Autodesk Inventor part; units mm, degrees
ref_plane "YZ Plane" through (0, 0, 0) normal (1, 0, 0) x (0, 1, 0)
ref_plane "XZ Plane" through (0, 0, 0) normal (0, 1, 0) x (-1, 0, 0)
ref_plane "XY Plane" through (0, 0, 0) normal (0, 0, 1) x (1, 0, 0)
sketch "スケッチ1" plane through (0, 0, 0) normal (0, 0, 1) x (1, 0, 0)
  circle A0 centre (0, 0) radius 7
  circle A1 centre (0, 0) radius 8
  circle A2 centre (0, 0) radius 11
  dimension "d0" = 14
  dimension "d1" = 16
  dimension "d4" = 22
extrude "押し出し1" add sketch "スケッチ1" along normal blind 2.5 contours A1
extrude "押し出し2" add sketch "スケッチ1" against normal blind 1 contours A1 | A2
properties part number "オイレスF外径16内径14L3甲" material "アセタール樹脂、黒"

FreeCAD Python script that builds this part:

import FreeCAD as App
import Part
import Sketcher

V = App.Vector

doc = App.newDocument("Part")
body = doc.addObject("PartDesign::Body", "Body")

sketch1 = body.newObject("Sketcher::SketchObject", "Sketch")
sketch1.AttachmentSupport = (doc.getObject("XY_Plane"), [""])
sketch1.MapMode = "FlatFace"
sketch1.addGeometry(Part.Circle(V(0, 0, 0), V(0, 0, 1), 8), False)
sketch1.addGeometry(Part.Circle(V(0, 0, 0), V(0, 0, 1), 7), False)
sketch1.addConstraint(Sketcher.Constraint("Coincident", 0, 3, -1, 1))
sketch1.addConstraint(Sketcher.Constraint("Coincident", 1, 3, -1, 1))
sketch1.addConstraint(Sketcher.Constraint("Diameter", 0, 16.0))
sketch1.addConstraint(Sketcher.Constraint("Diameter", 1, 14.0))
pad1 = body.newObject("PartDesign::Pad", "Pad")
pad1.Profile = sketch1
pad1.Length = 2.5

sketch2 = body.newObject("Sketcher::SketchObject", "Sketch001")
sketch2.AttachmentSupport = (doc.getObject("XY_Plane"), [""])
sketch2.MapMode = "FlatFace"
sketch2.addGeometry(Part.Circle(V(0, 0, 0), V(0, 0, 1), 11), False)
sketch2.addGeometry(Part.Circle(V(0, 0, 0), V(0, 0, 1), 7), False)
sketch2.addConstraint(Sketcher.Constraint("Coincident", 0, 3, -1, 1))
sketch2.addConstraint(Sketcher.Constraint("Coincident", 1, 3, -1, 1))
sketch2.addConstraint(Sketcher.Constraint("Diameter", 0, 22.0))
sketch2.addConstraint(Sketcher.Constraint("Diameter", 1, 14.0))
pad2 = body.newObject("PartDesign::Pad", "Pad001")
pad2.Profile = sketch2
pad2.Length = 1
pad2.Reversed = True

doc.recompute()
